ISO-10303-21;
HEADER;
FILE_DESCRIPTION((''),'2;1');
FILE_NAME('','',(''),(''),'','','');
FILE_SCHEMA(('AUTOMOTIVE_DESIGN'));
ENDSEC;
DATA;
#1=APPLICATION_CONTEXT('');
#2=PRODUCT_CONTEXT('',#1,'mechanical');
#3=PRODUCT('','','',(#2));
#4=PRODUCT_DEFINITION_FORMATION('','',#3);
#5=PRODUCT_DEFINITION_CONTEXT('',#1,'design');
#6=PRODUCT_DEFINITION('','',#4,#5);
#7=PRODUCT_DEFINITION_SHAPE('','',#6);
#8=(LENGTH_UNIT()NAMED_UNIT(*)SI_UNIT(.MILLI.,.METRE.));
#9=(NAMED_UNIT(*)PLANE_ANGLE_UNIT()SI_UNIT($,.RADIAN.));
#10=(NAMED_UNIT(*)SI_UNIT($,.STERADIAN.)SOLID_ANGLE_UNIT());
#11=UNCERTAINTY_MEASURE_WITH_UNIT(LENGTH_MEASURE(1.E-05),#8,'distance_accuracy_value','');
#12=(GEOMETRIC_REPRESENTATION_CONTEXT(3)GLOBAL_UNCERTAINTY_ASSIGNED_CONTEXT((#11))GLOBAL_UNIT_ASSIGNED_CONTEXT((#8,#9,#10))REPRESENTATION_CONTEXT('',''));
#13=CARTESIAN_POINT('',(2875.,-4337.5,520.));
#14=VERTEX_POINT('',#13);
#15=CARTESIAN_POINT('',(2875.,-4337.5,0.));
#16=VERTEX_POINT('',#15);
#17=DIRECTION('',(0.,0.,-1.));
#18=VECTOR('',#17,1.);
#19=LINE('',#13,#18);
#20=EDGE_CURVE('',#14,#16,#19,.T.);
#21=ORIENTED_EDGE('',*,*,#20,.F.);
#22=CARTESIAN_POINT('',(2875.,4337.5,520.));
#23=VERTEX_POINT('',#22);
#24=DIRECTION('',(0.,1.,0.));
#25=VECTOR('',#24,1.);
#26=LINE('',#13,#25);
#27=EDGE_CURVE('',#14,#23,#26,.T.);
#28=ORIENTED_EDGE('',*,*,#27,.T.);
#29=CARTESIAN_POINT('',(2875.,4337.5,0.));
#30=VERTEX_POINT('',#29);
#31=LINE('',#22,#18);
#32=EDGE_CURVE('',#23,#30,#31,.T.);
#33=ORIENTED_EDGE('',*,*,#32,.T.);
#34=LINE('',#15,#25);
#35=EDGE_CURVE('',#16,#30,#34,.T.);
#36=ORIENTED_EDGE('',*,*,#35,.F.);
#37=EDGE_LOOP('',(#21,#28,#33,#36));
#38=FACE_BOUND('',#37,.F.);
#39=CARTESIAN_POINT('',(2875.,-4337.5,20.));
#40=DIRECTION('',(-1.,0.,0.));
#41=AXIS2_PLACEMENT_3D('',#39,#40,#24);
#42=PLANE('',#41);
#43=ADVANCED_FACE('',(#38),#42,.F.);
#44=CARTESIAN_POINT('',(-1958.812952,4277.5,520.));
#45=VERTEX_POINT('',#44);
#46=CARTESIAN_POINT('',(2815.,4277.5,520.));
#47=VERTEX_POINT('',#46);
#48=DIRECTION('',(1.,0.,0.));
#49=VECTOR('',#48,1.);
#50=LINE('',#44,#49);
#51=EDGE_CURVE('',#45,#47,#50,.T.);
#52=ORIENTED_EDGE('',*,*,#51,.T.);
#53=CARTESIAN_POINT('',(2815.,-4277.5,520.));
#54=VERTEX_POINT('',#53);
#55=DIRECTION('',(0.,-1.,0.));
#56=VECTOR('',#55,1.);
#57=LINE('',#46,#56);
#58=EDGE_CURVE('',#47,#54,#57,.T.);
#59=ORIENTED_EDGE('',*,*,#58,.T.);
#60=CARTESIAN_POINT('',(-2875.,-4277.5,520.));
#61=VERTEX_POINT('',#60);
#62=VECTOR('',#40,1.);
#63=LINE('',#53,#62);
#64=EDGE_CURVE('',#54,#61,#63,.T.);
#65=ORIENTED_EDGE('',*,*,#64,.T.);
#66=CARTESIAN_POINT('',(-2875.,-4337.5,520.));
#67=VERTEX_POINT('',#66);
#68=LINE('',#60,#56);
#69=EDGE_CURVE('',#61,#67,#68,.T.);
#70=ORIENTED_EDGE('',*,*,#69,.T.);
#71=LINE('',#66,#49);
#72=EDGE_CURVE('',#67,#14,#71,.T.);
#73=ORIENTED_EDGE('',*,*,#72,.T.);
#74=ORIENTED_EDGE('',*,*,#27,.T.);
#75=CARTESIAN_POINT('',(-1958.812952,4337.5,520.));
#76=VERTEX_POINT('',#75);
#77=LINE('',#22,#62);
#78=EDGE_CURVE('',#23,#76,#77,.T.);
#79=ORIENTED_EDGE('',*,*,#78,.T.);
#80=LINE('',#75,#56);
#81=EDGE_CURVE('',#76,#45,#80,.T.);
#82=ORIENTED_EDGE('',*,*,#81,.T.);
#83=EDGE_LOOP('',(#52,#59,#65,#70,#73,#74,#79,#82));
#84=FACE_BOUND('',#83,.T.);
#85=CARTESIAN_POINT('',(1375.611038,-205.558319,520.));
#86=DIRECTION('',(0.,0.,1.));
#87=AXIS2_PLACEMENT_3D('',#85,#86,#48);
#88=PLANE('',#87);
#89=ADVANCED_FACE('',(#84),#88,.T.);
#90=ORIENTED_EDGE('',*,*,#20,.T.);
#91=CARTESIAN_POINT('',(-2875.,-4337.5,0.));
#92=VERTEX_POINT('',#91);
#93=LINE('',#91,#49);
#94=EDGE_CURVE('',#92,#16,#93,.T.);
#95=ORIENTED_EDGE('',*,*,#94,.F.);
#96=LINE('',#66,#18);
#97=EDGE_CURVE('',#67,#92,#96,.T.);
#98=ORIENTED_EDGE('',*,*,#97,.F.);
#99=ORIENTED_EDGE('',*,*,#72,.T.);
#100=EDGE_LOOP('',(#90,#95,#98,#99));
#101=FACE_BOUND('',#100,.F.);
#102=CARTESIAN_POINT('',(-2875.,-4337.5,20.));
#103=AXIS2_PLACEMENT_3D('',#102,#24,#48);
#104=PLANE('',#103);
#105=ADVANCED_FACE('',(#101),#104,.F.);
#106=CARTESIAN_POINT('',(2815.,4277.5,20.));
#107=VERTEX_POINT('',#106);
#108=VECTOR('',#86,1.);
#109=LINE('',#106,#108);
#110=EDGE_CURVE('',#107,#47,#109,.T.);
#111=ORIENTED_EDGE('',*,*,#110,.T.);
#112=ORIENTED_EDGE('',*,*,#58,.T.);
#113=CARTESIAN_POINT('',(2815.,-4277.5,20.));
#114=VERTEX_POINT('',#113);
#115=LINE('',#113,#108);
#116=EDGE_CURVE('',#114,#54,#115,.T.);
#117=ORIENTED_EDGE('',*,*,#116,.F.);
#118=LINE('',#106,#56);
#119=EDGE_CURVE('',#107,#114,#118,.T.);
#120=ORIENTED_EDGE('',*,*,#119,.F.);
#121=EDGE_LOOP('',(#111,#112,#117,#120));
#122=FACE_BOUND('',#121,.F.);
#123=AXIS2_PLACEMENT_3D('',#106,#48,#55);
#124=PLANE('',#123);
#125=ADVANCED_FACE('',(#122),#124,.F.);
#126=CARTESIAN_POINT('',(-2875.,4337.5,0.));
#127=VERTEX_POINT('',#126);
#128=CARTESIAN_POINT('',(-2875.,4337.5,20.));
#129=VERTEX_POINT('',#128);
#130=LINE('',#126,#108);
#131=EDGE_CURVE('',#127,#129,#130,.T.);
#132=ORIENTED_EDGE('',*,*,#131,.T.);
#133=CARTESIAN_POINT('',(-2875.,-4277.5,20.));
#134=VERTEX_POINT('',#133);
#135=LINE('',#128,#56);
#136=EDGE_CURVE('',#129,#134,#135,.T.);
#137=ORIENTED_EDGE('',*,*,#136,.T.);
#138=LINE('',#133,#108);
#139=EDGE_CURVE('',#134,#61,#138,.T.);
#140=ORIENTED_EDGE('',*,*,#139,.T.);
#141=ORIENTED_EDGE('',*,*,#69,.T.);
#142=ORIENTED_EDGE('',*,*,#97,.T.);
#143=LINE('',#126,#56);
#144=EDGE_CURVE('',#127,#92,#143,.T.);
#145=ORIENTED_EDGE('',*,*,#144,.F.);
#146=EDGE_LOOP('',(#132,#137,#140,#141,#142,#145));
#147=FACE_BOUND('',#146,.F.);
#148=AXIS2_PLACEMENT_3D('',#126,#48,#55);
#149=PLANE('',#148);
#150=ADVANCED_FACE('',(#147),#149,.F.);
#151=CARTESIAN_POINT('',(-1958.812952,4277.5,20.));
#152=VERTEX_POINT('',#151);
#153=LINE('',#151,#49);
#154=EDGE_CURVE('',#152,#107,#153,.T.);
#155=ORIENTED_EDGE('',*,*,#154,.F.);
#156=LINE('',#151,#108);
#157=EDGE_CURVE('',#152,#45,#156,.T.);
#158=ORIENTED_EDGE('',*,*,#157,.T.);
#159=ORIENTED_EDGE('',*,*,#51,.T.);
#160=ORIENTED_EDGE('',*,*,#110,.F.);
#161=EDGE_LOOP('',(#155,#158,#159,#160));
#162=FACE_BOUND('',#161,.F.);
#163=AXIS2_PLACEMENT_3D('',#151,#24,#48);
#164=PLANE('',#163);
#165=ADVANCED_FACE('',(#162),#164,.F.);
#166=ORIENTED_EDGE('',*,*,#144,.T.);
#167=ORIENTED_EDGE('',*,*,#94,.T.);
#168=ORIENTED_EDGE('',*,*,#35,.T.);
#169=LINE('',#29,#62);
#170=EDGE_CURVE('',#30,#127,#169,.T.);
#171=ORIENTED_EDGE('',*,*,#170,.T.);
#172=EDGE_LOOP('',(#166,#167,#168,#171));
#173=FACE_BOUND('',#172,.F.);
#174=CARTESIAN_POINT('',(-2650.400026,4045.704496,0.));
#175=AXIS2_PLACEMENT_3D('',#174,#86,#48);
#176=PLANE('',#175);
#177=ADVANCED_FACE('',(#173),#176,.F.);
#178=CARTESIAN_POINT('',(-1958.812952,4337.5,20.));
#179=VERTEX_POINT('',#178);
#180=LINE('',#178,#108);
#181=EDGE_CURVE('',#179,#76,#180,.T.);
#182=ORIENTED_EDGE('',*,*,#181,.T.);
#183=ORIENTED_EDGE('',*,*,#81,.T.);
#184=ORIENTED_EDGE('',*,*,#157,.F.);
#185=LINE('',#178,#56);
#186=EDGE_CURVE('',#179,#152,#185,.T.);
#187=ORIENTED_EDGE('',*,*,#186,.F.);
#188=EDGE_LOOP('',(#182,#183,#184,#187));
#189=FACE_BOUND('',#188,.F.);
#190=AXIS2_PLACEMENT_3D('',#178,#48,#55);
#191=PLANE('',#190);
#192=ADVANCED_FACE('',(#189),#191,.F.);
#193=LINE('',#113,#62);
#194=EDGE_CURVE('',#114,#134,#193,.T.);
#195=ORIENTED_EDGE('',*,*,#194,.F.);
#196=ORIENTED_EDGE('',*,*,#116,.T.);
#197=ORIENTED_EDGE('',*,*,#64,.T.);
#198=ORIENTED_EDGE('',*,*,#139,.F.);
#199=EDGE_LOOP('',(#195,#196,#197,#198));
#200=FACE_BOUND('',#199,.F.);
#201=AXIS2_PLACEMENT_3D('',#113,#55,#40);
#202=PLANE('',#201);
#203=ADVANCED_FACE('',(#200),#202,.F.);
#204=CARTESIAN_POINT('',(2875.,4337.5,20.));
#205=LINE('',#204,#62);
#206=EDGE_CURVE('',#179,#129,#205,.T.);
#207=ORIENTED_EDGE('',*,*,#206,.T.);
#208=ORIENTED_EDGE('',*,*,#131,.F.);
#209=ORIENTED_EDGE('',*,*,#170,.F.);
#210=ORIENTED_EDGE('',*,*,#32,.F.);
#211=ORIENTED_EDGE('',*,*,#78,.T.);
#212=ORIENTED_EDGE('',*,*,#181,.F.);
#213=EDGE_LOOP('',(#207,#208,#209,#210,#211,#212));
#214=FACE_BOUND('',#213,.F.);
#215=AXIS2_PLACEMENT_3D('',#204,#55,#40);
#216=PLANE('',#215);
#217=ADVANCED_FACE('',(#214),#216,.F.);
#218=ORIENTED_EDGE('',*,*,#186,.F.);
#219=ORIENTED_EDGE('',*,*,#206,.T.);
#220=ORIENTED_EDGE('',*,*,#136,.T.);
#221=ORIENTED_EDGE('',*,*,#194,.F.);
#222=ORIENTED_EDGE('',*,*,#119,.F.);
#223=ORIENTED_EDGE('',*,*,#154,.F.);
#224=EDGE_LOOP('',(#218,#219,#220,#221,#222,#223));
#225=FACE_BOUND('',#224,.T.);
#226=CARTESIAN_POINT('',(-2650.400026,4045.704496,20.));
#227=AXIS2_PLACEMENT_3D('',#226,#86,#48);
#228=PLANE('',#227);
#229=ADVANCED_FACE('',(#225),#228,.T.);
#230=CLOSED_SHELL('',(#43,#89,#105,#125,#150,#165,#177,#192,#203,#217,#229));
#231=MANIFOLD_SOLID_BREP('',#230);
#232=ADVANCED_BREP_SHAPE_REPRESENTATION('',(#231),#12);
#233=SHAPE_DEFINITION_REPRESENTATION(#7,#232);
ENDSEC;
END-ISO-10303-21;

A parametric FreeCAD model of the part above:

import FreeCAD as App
import Part
import Sketcher

V = App.Vector


def add_polygon(sketch, points):
    """Adds a closed chain of lines whose ends are joined by coincident constraints."""
    first, n = sketch.GeometryCount, len(points)
    for a, b in zip(points, points[1:] + points[:1]):
        sketch.addGeometry(Part.LineSegment(App.Vector(*a, 0), App.Vector(*b, 0)), False)
    for i in range(n):
        sketch.addConstraint(Sketcher.Constraint("Coincident", first + i, 2, first + (i + 1) % n, 1))

doc = App.newDocument("Part")
body = doc.addObject("PartDesign::Body", "Body")

sketch1 = body.newObject("Sketcher::SketchObject", "Sketch")
sketch1.AttachmentSupport = (doc.getObject("XY_Plane"), [""])
sketch1.MapMode = "FlatFace"
add_polygon(sketch1, [(-2875, 4337.5), (-2875, -4337.5), (2875, -4337.5), (2875, 4337.5)])
sketch1.addConstraint([
    Sketcher.Constraint("Vertical", 0),
    Sketcher.Constraint("Horizontal", 1),
    Sketcher.Constraint("Vertical", 2),
    Sketcher.Constraint("Horizontal", 3),
    Sketcher.Constraint("Symmetric", 0, 2, 2, 2, -1, 1),
    Sketcher.Constraint("DistanceX", 1, 1, 1, 2, 5750.0),
    Sketcher.Constraint("DistanceY", 0, 2, 0, 1, 8675.0),
])
pad1 = body.newObject("PartDesign::Pad", "Pad")
pad1.Profile = sketch1
pad1.Length = 20

sketch2 = body.newObject("Sketcher::SketchObject", "Sketch001")
sketch2.AttachmentSupport = (doc.getObject("XY_Plane"), [""])
sketch2.MapMode = "FlatFace"
sketch2.AttachmentOffset = App.Placement(V(0, 0, 20), App.Rotation())
add_polygon(sketch2, [(2875, 4337.5), (-1958.812952, 4337.5), (-1958.812952, 4277.5), (2815, 4277.5), (2815, -4277.5), (-2875, -4277.5), (-2875, -4337.5), (2875, -4337.5)])
sketch2.addConstraint([
    Sketcher.Constraint("Horizontal", 0),
    Sketcher.Constraint("Vertical", 1),
    Sketcher.Constraint("Horizontal", 2),
    Sketcher.Constraint("Vertical", 3),
    Sketcher.Constraint("Horizontal", 4),
    Sketcher.Constraint("Vertical", 5),
    Sketcher.Constraint("Horizontal", 6),
    Sketcher.Constraint("Vertical", 7),
    Sketcher.Constraint("Symmetric", 5, 2, 7, 2, -1, 1),
    Sketcher.Constraint("Equal", 1, 5),
    Sketcher.Constraint("DistanceX", 4, 2, 4, 1, 5690.0),
    Sketcher.Constraint("DistanceX", 6, 1, 6, 2, 5750.0),
    Sketcher.Constraint("DistanceY", 1, 2, 1, 1, 60.0),
    Sketcher.Constraint("DistanceY", 3, 2, 3, 1, 8555.0),
    Sketcher.Constraint("DistanceX", 0, 2, 0, 1, 4833.812952),
])
pad2 = body.newObject("PartDesign::Pad", "Pad001")
pad2.Profile = sketch2
pad2.Length = 500

doc.recompute()
